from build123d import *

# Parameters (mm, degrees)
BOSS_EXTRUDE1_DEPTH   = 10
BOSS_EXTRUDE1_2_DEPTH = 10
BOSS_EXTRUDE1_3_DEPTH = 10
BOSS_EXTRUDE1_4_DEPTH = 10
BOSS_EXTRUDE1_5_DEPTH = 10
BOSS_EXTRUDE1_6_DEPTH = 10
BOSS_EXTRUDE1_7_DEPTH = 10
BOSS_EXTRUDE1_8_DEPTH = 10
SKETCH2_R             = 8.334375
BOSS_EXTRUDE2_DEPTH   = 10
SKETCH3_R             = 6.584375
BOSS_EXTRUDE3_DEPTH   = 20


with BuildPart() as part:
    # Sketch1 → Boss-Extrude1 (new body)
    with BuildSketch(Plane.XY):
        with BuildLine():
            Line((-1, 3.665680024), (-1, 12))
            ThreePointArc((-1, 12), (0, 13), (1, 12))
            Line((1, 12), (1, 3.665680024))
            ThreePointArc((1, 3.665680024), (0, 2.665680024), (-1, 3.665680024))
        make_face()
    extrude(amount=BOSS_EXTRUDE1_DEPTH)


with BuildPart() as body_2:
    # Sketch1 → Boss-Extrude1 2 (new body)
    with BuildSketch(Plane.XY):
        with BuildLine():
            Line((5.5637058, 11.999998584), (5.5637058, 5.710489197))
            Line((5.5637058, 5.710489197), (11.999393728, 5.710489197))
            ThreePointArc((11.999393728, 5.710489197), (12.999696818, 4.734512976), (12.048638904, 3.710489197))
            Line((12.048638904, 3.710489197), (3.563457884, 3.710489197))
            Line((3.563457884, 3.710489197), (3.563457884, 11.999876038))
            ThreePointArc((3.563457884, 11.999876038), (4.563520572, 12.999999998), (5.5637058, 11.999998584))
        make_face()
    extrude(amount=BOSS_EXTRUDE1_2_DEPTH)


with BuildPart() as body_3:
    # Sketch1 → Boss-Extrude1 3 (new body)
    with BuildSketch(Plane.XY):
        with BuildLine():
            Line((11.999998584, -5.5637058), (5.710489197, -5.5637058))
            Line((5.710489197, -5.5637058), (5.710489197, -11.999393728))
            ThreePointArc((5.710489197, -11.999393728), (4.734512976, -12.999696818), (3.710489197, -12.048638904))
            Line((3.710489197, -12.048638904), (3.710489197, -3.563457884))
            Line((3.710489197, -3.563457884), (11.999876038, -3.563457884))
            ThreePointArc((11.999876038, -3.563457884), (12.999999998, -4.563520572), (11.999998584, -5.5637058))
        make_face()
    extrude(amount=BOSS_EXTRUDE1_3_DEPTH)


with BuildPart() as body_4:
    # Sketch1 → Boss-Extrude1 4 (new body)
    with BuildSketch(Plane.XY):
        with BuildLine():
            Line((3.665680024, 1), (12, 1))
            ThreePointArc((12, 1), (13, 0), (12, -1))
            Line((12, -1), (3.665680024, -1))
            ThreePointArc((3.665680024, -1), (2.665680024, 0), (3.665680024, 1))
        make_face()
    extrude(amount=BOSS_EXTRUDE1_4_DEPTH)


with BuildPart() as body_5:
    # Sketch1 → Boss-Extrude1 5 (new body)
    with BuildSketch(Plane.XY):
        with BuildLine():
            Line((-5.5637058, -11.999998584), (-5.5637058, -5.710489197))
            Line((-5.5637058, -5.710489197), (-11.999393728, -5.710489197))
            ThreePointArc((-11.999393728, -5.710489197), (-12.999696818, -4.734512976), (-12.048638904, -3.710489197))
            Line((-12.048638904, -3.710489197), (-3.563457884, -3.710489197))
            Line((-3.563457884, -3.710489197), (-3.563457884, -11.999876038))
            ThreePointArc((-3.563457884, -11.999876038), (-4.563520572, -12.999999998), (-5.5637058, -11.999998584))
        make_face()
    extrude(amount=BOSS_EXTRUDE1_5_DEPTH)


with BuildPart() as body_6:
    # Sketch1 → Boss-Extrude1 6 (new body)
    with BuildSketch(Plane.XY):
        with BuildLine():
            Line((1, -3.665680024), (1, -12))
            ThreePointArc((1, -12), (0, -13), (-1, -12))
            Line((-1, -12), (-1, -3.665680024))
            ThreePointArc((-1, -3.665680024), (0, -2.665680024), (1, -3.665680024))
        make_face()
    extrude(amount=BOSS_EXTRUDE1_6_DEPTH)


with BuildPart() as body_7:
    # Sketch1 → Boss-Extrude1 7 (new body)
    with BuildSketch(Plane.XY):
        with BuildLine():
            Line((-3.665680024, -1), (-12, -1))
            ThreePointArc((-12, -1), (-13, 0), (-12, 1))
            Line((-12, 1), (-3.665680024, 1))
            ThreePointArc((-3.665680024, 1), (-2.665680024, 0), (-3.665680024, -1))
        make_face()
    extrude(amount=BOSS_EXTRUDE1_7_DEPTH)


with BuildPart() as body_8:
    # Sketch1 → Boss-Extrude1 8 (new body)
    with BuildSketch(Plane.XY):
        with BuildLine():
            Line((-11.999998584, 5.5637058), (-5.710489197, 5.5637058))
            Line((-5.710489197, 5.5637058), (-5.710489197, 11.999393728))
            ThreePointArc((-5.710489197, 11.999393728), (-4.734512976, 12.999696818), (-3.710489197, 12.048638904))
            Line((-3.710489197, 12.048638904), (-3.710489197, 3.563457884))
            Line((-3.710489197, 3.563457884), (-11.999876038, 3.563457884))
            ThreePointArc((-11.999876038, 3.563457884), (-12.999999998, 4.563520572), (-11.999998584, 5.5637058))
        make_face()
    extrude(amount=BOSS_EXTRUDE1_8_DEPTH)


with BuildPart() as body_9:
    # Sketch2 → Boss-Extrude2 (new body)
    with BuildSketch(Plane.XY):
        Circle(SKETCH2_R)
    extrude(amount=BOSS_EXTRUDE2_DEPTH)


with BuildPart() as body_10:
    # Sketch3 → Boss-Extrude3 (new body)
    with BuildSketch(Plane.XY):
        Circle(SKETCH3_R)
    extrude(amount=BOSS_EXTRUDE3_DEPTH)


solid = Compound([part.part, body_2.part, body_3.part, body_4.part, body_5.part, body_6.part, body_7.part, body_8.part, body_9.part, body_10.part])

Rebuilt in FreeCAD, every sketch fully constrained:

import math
import FreeCAD as App
import Part
import Sketcher

V = App.Vector

doc = App.newDocument("Part")
body = doc.addObject("PartDesign::Body", "Body")

sketch1 = body.newObject("Sketcher::SketchObject", "Sketch")
sketch1.AttachmentSupport = (doc.getObject("XY_Plane"), [""])
sketch1.MapMode = "FlatFace"
sketch1.addGeometry([
    Part.LineSegment(V(-1, 12, 0), V(-1, 3.7, 0)),
    Part.ArcOfCircle(Part.Circle(V(0, 3.7, 0), V(0, 0, 1), 1), math.radians(180), math.radians(360)),
    Part.LineSegment(V(1, 3.7, 0), V(1, 12, 0)),
    Part.ArcOfCircle(Part.Circle(V(0, 12, 0), V(0, 0, 1), 1), math.radians(0), math.radians(180)),
], False)
sketch1.addConstraint([
    Sketcher.Constraint("Tangent", 0, 2, 1, 1),
    Sketcher.Constraint("Tangent", 1, 2, 2, 1),
    Sketcher.Constraint("Tangent", 2, 2, 3, 1),
    Sketcher.Constraint("Tangent", 3, 2, 0, 1),
    Sketcher.Constraint("Vertical", 0),
    Sketcher.Constraint("Vertical", 2),
    Sketcher.Constraint("PointOnObject", 1, 3, -2),
    Sketcher.Constraint("Radius", 1, 1.0),
    Sketcher.Constraint("DistanceY", -1, 1, 3, 3, 12.0),
    Sketcher.Constraint("DistanceY", 0, 2, 0, 1, 8.33432),
])
pad1 = body.newObject("PartDesign::Pad", "Pad")
pad1.Profile = sketch1
pad1.Length = 10
body2 = doc.addObject("PartDesign::Body", "Body001")

sketch2 = body2.newObject("Sketcher::SketchObject", "Sketch001")
sketch2.AttachmentSupport = (doc.getObject("XY_Plane001"), [""])
sketch2.MapMode = "FlatFace"
sketch2.addGeometry([
    Part.LineSegment(V(5.6, 5.7, 0), V(5.6, 12, 0)),
    Part.ArcOfCircle(Part.Circle(V(4.6, 12, 0), V(0, 0, 1), 1), math.radians(0), math.radians(180)),
    Part.LineSegment(V(3.6, 12, 0), V(3.6, 3.7, 0)),
    Part.LineSegment(V(3.6, 3.7, 0), V(12, 3.7, 0)),
    Part.ArcOfCircle(Part.Circle(V(12, 4.7, 0), V(0, 0, 1), 1), math.radians(-87), math.radians(90)),
    Part.LineSegment(V(12, 5.7, 0), V(5.6, 5.7, 0)),
], False)
sketch2.addConstraint([
    Sketcher.Constraint("Coincident", 0, 2, 1, 1),
    Sketcher.Constraint("Tangent", 1, 2, 2, 1),
    Sketcher.Constraint("Coincident", 2, 2, 3, 1),
    Sketcher.Constraint("Coincident", 3, 2, 4, 1),
    Sketcher.Constraint("Tangent", 4, 2, 5, 1),
    Sketcher.Constraint("Coincident", 5, 2, 0, 1),
    Sketcher.Constraint("Vertical", 0),
    Sketcher.Constraint("Vertical", 2),
    Sketcher.Constraint("Horizontal", 3),
    Sketcher.Constraint("Horizontal", 5),
    Sketcher.Constraint("DistanceY", -1, 1, 0, 2, 11.999999),
    Sketcher.Constraint("DistanceY", 3, 2, 4, 2, 2.0),
    Sketcher.Constraint("Radius", 1, 1.000124),
    Sketcher.Constraint("Radius", 4, 1.000606),
    Sketcher.Constraint("DistanceX", 3, 1, 3, 2, 8.485181),
    Sketcher.Constraint("DistanceY", 0, 1, 0, 2, 6.289509),
    Sketcher.Constraint("DistanceY", 2, 2, 2, 1, 8.289387),
    Sketcher.Constraint("DistanceX", -1, 1, 1, 3, 4.563582),
])
pad2 = body2.newObject("PartDesign::Pad", "Pad001")
pad2.Profile = sketch2
pad2.Length = 10
body3 = doc.addObject("PartDesign::Body", "Body002")

sketch3 = body3.newObject("Sketcher::SketchObject", "Sketch002")
sketch3.AttachmentSupport = (doc.getObject("XY_Plane002"), [""])
sketch3.MapMode = "FlatFace"
sketch3.addGeometry([
    Part.LineSegment(V(5.7, -5.6, 0), V(12, -5.6, 0)),
    Part.ArcOfCircle(Part.Circle(V(12, -4.6, 0), V(0, 0, 1), 1), math.radians(-90), math.radians(90)),
    Part.LineSegment(V(12, -3.6, 0), V(3.7, -3.6, 0)),
    Part.LineSegment(V(3.7, -3.6, 0), V(3.7, -12, 0)),
    Part.ArcOfCircle(Part.Circle(V(4.7, -12, 0), V(0, 0, 1), 1), math.radians(-177), math.radians(0)),
    Part.LineSegment(V(5.7, -12, 0), V(5.7, -5.6, 0)),
], False)
sketch3.addConstraint([
    Sketcher.Constraint("Coincident", 0, 2, 1, 1),
    Sketcher.Constraint("Tangent", 1, 2, 2, 1),
    Sketcher.Constraint("Coincident", 2, 2, 3, 1),
    Sketcher.Constraint("Coincident", 3, 2, 4, 1),
    Sketcher.Constraint("Tangent", 4, 2, 5, 1),
    Sketcher.Constraint("Coincident", 5, 2, 0, 1),
    Sketcher.Constraint("Horizontal", 0),
    Sketcher.Constraint("Horizontal", 2),
    Sketcher.Constraint("Vertical", 3),
    Sketcher.Constraint("Vertical", 5),
    Sketcher.Constraint("DistanceX", -1, 1, 0, 2, 11.999999),
    Sketcher.Constraint("DistanceX", 3, 2, 4, 2, 2.0),
    Sketcher.Constraint("Radius", 1, 1.000124),
    Sketcher.Constraint("Radius", 4, 1.000606),
    Sketcher.Constraint("DistanceX", 0, 1, 0, 2, 6.289509),
    Sketcher.Constraint("DistanceY", 3, 2, 3, 1, 8.485181),
    Sketcher.Constraint("DistanceX", 2, 2, 2, 1, 8.289387),
    Sketcher.Constraint("DistanceY", 1, 3, -1, 1, 4.563582),
])
pad3 = body3.newObject("PartDesign::Pad", "Pad002")
pad3.Profile = sketch3
pad3.Length = 10
body4 = doc.addObject("PartDesign::Body", "Body003")

sketch4 = body4.newObject("Sketcher::SketchObject", "Sketch003")
sketch4.AttachmentSupport = (doc.getObject("XY_Plane003"), [""])
sketch4.MapMode = "FlatFace"
sketch4.addGeometry([
    Part.LineSegment(V(12, 1, 0), V(3.7, 1, 0)),
    Part.ArcOfCircle(Part.Circle(V(3.7, 0, 0), V(0, 0, 1), 1), math.radians(90), math.radians(270)),
    Part.LineSegment(V(3.7, -1, 0), V(12, -1, 0)),
    Part.ArcOfCircle(Part.Circle(V(12, 0, 0), V(0, 0, 1), 1), math.radians(-90), math.radians(90)),
], False)
sketch4.addConstraint([
    Sketcher.Constraint("Tangent", 0, 2, 1, 1),
    Sketcher.Constraint("Tangent", 1, 2, 2, 1),
    Sketcher.Constraint("Tangent", 2, 2, 3, 1),
    Sketcher.Constraint("Tangent", 3, 2, 0, 1),
    Sketcher.Constraint("Horizontal", 0),
    Sketcher.Constraint("Horizontal", 2),
    Sketcher.Constraint("PointOnObject", 1, 3, -1),
    Sketcher.Constraint("Radius", 1, 1.0),
    Sketcher.Constraint("DistanceX", -1, 1, 3, 3, 12.0),
    Sketcher.Constraint("DistanceX", 0, 2, 0, 1, 8.33432),
])
pad4 = body4.newObject("PartDesign::Pad", "Pad003")
pad4.Profile = sketch4
pad4.Length = 10
body5 = doc.addObject("PartDesign::Body", "Body004")

sketch5 = body5.newObject("Sketcher::SketchObject", "Sketch004")
sketch5.AttachmentSupport = (doc.getObject("XY_Plane004"), [""])
sketch5.MapMode = "FlatFace"
sketch5.addGeometry([
    Part.LineSegment(V(-5.6, -5.7, 0), V(-5.6, -12, 0)),
    Part.ArcOfCircle(Part.Circle(V(-4.6, -12, 0), V(0, 0, 1), 1), math.radians(-180), math.radians(0)),
    Part.LineSegment(V(-3.6, -12, 0), V(-3.6, -3.7, 0)),
    Part.LineSegment(V(-3.6, -3.7, 0), V(-12, -3.7, 0)),
    Part.ArcOfCircle(Part.Circle(V(-12, -4.7, 0), V(0, 0, 1), 1), math.radians(93), math.radians(270)),
    Part.LineSegment(V(-12, -5.7, 0), V(-5.6, -5.7, 0)),
], False)
sketch5.addConstraint([
    Sketcher.Constraint("Coincident", 0, 2, 1, 1),
    Sketcher.Constraint("Tangent", 1, 2, 2, 1),
    Sketcher.Constraint("Coincident", 2, 2, 3, 1),
    Sketcher.Constraint("Coincident", 3, 2, 4, 1),
    Sketcher.Constraint("Tangent", 4, 2, 5, 1),
    Sketcher.Constraint("Coincident", 5, 2, 0, 1),
    Sketcher.Constraint("Vertical", 0),
    Sketcher.Constraint("Vertical", 2),
    Sketcher.Constraint("Horizontal", 3),
    Sketcher.Constraint("Horizontal", 5),
    Sketcher.Constraint("DistanceY", 0, 2, -1, 1, 11.999999),
    Sketcher.Constraint("DistanceY", 4, 2, 3, 2, 2.0),
    Sketcher.Constraint("Radius", 1, 1.000124),
    Sketcher.Constraint("Radius", 4, 1.000606),
    Sketcher.Constraint("DistanceX", 3, 2, 3, 1, 8.485181),
    Sketcher.Constraint("DistanceY", 0, 2, 0, 1, 6.289509),
    Sketcher.Constraint("DistanceY", 2, 1, 2, 2, 8.289387),
    Sketcher.Constraint("DistanceX", 1, 3, -1, 1, 4.563582),
])
pad5 = body5.newObject("PartDesign::Pad", "Pad004")
pad5.Profile = sketch5
pad5.Length = 10
body6 = doc.addObject("PartDesign::Body", "Body005")

sketch6 = body6.newObject("Sketcher::SketchObject", "Sketch005")
sketch6.AttachmentSupport = (doc.getObject("XY_Plane005"), [""])
sketch6.MapMode = "FlatFace"
sketch6.addGeometry([
    Part.LineSegment(V(1, -12, 0), V(1, -3.7, 0)),
    Part.ArcOfCircle(Part.Circle(V(0, -3.7, 0), V(0, 0, 1), 1), math.radians(0), math.radians(180)),
    Part.LineSegment(V(-1, -3.7, 0), V(-1, -12, 0)),
    Part.ArcOfCircle(Part.Circle(V(0, -12, 0), V(0, 0, 1), 1), math.radians(180), math.radians(360)),
], False)
sketch6.addConstraint([
    Sketcher.Constraint("Tangent", 0, 2, 1, 1),
    Sketcher.Constraint("Tangent", 1, 2, 2, 1),
    Sketcher.Constraint("Tangent", 2, 2, 3, 1),
    Sketcher.Constraint("Tangent", 3, 2, 0, 1),
    Sketcher.Constraint("Vertical", 0),
    Sketcher.Constraint("Vertical", 2),
    Sketcher.Constraint("PointOnObject", 1, 3, -2),
    Sketcher.Constraint("Radius", 1, 1.0),
    Sketcher.Constraint("DistanceY", 3, 3, -1, 1, 12.0),
    Sketcher.Constraint("DistanceY", 0, 1, 0, 2, 8.33432),
])
pad6 = body6.newObject("PartDesign::Pad", "Pad005")
pad6.Profile = sketch6
pad6.Length = 10
body7 = doc.addObject("PartDesign::Body", "Body006")

sketch7 = body7.newObject("Sketcher::SketchObject", "Sketch006")
sketch7.AttachmentSupport = (doc.getObject("XY_Plane006"), [""])
sketch7.MapMode = "FlatFace"
sketch7.addGeometry([
    Part.LineSegment(V(-12, -1, 0), V(-3.7, -1, 0)),
    Part.ArcOfCircle(Part.Circle(V(-3.7, 0, 0), V(0, 0, 1), 1), math.radians(-90), math.radians(90)),
    Part.LineSegment(V(-3.7, 1, 0), V(-12, 1, 0)),
    Part.ArcOfCircle(Part.Circle(V(-12, 0, 0), V(0, 0, 1), 1), math.radians(90), math.radians(270)),
], False)
sketch7.addConstraint([
    Sketcher.Constraint("Tangent", 0, 2, 1, 1),
    Sketcher.Constraint("Tangent", 1, 2, 2, 1),
    Sketcher.Constraint("Tangent", 2, 2, 3, 1),
    Sketcher.Constraint("Tangent", 3, 2, 0, 1),
    Sketcher.Constraint("Horizontal", 0),
    Sketcher.Constraint("Horizontal", 2),
    Sketcher.Constraint("PointOnObject", 1, 3, -1),
    Sketcher.Constraint("Radius", 1, 1.0),
    Sketcher.Constraint("DistanceX", 3, 3, -1, 1, 12.0),
    Sketcher.Constraint("DistanceX", 0, 1, 0, 2, 8.33432),
])
pad7 = body7.newObject("PartDesign::Pad", "Pad006")
pad7.Profile = sketch7
pad7.Length = 10
body8 = doc.addObject("PartDesign::Body", "Body007")

sketch8 = body8.newObject("Sketcher::SketchObject", "Sketch007")
sketch8.AttachmentSupport = (doc.getObject("XY_Plane007"), [""])
sketch8.MapMode = "FlatFace"
sketch8.addGeometry([
    Part.LineSegment(V(-5.7, 5.6, 0), V(-12, 5.6, 0)),
    Part.ArcOfCircle(Part.Circle(V(-12, 4.6, 0), V(0, 0, 1), 1), math.radians(90), math.radians(270)),
    Part.LineSegment(V(-12, 3.6, 0), V(-3.7, 3.6, 0)),
    Part.LineSegment(V(-3.7, 3.6, 0), V(-3.7, 12, 0)),
    Part.ArcOfCircle(Part.Circle(V(-4.7, 12, 0), V(0, 0, 1), 1), math.radians(3), math.radians(180)),
    Part.LineSegment(V(-5.7, 12, 0), V(-5.7, 5.6, 0)),
], False)
sketch8.addConstraint([
    Sketcher.Constraint("Coincident", 0, 2, 1, 1),
    Sketcher.Constraint("Tangent", 1, 2, 2, 1),
    Sketcher.Constraint("Coincident", 2, 2, 3, 1),
    Sketcher.Constraint("Coincident", 3, 2, 4, 1),
    Sketcher.Constraint("Tangent", 4, 2, 5, 1),
    Sketcher.Constraint("Coincident", 5, 2, 0, 1),
    Sketcher.Constraint("Horizontal", 0),
    Sketcher.Constraint("Horizontal", 2),
    Sketcher.Constraint("Vertical", 3),
    Sketcher.Constraint("Vertical", 5),
    Sketcher.Constraint("DistanceX", 0, 2, -1, 1, 11.999999),
    Sketcher.Constraint("DistanceX", 4, 2, 3, 2, 2.0),
    Sketcher.Constraint("Radius", 1, 1.000124),
    Sketcher.Constraint("Radius", 4, 1.000606),
    Sketcher.Constraint("DistanceX", 0, 2, 0, 1, 6.289509),
    Sketcher.Constraint("DistanceY", 3, 1, 3, 2, 8.485181),
    Sketcher.Constraint("DistanceX", 2, 1, 2, 2, 8.289387),
    Sketcher.Constraint("DistanceY", -1, 1, 1, 3, 4.563582),
])
pad8 = body8.newObject("PartDesign::Pad", "Pad007")
pad8.Profile = sketch8
pad8.Length = 10
body9 = doc.addObject("PartDesign::Body", "Body008")

sketch9 = body9.newObject("Sketcher::SketchObject", "Sketch008")
sketch9.AttachmentSupport = (doc.getObject("XY_Plane008"), [""])
sketch9.MapMode = "FlatFace"
sketch9.addGeometry(Part.Circle(V(0, 0, 0), V(0, 0, 1), 8), False)
sketch9.addConstraint([
    Sketcher.Constraint("Coincident", 0, 3, -1, 1),
    Sketcher.Constraint("Diameter", 0, 16.66875),
])
pad9 = body9.newObject("PartDesign::Pad", "Pad008")
pad9.Profile = sketch9
pad9.Length = 10
body10 = doc.addObject("PartDesign::Body", "Body009")

sketch10 = body10.newObject("Sketcher::SketchObject", "Sketch009")
sketch10.AttachmentSupport = (doc.getObject("XY_Plane009"), [""])
sketch10.MapMode = "FlatFace"
sketch10.addGeometry(Part.Circle(V(0, 0, 0), V(0, 0, 1), 7), False)
sketch10.addConstraint([
    Sketcher.Constraint("Coincident", 0, 3, -1, 1),
    Sketcher.Constraint("Diameter", 0, 13.16875),
])
pad10 = body10.newObject("PartDesign::Pad", "Pad009")
pad10.Profile = sketch10
pad10.Length = 20

doc.recompute()
